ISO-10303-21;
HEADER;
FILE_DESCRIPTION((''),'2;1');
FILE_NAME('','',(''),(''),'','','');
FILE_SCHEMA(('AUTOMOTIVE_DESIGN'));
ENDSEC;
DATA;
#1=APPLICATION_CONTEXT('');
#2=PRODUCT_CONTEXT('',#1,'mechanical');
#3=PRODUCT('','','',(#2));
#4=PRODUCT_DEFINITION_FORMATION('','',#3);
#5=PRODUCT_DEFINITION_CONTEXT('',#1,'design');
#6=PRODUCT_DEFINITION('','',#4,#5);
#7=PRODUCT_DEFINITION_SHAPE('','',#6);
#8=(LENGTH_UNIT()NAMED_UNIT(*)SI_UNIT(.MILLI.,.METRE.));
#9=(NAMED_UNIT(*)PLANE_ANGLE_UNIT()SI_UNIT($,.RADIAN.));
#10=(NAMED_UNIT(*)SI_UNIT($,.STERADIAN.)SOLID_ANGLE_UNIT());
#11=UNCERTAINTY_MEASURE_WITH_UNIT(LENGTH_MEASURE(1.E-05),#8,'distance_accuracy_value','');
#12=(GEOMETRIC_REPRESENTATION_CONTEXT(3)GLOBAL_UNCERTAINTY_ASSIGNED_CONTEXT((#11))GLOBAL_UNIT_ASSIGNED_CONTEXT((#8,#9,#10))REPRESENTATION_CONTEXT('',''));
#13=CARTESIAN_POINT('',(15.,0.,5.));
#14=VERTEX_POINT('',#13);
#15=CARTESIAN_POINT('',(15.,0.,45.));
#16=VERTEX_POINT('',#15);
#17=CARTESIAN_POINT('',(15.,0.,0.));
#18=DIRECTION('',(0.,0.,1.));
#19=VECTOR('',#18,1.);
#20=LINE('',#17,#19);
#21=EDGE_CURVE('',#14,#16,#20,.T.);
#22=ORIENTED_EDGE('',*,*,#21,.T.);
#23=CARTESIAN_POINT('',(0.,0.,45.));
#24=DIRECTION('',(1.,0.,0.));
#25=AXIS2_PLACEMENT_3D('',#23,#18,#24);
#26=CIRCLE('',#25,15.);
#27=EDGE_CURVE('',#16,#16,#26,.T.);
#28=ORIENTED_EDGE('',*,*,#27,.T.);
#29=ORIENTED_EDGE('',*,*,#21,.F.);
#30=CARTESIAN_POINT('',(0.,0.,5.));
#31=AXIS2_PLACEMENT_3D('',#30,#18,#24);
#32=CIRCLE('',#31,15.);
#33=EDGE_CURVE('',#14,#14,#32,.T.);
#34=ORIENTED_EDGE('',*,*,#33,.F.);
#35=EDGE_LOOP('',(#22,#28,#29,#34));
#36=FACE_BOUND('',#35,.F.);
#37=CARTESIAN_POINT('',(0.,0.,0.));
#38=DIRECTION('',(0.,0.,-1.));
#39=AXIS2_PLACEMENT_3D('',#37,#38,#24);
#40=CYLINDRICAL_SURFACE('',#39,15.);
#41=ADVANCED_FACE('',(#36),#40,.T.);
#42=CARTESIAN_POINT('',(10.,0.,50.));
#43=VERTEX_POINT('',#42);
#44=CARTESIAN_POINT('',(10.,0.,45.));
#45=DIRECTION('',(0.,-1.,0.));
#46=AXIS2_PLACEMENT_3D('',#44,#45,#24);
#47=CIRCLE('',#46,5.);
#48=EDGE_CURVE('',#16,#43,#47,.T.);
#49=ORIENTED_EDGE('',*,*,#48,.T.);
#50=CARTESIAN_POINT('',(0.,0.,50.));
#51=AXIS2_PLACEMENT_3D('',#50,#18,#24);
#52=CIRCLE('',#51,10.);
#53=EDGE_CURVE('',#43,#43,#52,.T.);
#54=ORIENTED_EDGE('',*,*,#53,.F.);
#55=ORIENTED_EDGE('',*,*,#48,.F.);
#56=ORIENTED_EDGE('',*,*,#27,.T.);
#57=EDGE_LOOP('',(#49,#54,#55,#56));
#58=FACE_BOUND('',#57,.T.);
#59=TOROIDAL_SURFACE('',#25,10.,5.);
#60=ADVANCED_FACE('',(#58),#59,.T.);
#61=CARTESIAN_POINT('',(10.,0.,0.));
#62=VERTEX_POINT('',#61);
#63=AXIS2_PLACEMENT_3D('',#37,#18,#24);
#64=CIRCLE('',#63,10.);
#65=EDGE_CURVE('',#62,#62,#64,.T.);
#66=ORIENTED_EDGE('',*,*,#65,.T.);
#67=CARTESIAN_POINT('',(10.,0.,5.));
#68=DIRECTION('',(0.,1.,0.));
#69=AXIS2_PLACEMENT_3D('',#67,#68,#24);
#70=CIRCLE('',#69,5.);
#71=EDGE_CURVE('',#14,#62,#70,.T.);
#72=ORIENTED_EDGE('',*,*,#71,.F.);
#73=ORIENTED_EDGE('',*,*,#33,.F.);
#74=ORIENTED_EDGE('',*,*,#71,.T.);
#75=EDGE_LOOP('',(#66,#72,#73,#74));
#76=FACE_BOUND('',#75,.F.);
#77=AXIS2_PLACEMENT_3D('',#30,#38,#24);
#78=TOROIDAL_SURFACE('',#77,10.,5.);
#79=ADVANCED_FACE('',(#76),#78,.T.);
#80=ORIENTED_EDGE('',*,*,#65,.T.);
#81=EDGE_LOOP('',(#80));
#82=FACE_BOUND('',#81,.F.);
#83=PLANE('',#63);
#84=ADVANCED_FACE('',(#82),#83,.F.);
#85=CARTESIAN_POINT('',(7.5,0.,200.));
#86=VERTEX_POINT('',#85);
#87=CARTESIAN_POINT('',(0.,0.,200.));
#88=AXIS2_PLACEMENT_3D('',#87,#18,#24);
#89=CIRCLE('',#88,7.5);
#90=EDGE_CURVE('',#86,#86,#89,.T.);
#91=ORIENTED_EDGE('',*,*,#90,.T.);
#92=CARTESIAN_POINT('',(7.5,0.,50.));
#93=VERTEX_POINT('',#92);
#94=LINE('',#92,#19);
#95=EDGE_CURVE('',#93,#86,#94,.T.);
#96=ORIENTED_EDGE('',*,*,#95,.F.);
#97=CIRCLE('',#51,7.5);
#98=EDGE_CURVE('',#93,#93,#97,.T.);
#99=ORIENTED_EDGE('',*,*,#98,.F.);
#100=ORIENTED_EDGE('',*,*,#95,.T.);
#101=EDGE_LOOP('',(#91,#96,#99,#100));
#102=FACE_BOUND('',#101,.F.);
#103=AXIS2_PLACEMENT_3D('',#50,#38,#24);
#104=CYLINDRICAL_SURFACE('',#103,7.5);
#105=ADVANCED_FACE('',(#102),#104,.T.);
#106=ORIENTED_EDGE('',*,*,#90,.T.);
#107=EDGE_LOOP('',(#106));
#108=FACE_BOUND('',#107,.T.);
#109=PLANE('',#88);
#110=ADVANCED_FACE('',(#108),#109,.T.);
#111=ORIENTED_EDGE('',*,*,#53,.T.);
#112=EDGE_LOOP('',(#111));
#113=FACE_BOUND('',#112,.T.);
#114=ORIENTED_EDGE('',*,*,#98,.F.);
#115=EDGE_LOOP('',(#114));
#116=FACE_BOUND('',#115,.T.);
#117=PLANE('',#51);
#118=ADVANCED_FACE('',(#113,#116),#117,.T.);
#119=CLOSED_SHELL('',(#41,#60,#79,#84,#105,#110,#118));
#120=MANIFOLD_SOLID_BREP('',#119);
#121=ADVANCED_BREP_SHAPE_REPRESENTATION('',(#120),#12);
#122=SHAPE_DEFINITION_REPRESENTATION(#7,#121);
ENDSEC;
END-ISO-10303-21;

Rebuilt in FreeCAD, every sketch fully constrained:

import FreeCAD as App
import Part
import Sketcher
Q = App.Units.Quantity


def edges_at(feature, points):
    """Names of the edges that pass closest to the given points."""
    edges = feature.Shape.Edges
    near = lambda p: min(range(len(edges)), key=lambda i: edges[i].distToShape(Part.Vertex(*p))[0])
    return sorted({f"Edge{near(p) + 1}" for p in points})

doc = App.newDocument("Part")
body = doc.addObject("PartDesign::Body", "Body")

# Sketch on XY plane
sketch1 = body.newObject("Sketcher::SketchObject", "Sketch")
sketch1.AttachmentSupport = (doc.getObject("XY_Plane"), [""])
sketch1.MapMode = "FlatFace"
sketch1.addGeometry(Part.Circle(App.Vector(0, 0, 0), App.Vector(0, 0, 1), 15), False)
sketch1.addConstraint([
    Sketcher.Constraint("Coincident", 0, 3, -1, 1),
    Sketcher.Constraint("Diameter", 0, Q("30 mm")),
])
pad1 = body.newObject("PartDesign::Pad", "Pad")
pad1.Profile = sketch1
pad1.Length = 50
doc.recompute()

fillet = body.newObject("PartDesign::Fillet", "Fillet")
fillet.Base = (pad1, edges_at(pad1, [(-15, 0, 50), (-15, 0, 0)]))
fillet.Radius = 5

# Sketch on XY plane
sketch2 = body.newObject("Sketcher::SketchObject", "Sketch001")
sketch2.AttachmentSupport = (doc.getObject("XY_Plane"), [""])
sketch2.MapMode = "FlatFace"
sketch2.AttachmentOffset = App.Placement(App.Vector(0, 0, 50), App.Rotation())
sketch2.addGeometry(Part.Circle(App.Vector(0, 0, 0), App.Vector(0, 0, 1), 7.5), False)
sketch2.addConstraint([
    Sketcher.Constraint("Coincident", 0, 3, -1, 1),
    Sketcher.Constraint("Diameter", 0, Q("15 mm")),
])
pad2 = body.newObject("PartDesign::Pad", "Pad001")
pad2.Profile = sketch2
pad2.Length = 150

doc.recompute()
